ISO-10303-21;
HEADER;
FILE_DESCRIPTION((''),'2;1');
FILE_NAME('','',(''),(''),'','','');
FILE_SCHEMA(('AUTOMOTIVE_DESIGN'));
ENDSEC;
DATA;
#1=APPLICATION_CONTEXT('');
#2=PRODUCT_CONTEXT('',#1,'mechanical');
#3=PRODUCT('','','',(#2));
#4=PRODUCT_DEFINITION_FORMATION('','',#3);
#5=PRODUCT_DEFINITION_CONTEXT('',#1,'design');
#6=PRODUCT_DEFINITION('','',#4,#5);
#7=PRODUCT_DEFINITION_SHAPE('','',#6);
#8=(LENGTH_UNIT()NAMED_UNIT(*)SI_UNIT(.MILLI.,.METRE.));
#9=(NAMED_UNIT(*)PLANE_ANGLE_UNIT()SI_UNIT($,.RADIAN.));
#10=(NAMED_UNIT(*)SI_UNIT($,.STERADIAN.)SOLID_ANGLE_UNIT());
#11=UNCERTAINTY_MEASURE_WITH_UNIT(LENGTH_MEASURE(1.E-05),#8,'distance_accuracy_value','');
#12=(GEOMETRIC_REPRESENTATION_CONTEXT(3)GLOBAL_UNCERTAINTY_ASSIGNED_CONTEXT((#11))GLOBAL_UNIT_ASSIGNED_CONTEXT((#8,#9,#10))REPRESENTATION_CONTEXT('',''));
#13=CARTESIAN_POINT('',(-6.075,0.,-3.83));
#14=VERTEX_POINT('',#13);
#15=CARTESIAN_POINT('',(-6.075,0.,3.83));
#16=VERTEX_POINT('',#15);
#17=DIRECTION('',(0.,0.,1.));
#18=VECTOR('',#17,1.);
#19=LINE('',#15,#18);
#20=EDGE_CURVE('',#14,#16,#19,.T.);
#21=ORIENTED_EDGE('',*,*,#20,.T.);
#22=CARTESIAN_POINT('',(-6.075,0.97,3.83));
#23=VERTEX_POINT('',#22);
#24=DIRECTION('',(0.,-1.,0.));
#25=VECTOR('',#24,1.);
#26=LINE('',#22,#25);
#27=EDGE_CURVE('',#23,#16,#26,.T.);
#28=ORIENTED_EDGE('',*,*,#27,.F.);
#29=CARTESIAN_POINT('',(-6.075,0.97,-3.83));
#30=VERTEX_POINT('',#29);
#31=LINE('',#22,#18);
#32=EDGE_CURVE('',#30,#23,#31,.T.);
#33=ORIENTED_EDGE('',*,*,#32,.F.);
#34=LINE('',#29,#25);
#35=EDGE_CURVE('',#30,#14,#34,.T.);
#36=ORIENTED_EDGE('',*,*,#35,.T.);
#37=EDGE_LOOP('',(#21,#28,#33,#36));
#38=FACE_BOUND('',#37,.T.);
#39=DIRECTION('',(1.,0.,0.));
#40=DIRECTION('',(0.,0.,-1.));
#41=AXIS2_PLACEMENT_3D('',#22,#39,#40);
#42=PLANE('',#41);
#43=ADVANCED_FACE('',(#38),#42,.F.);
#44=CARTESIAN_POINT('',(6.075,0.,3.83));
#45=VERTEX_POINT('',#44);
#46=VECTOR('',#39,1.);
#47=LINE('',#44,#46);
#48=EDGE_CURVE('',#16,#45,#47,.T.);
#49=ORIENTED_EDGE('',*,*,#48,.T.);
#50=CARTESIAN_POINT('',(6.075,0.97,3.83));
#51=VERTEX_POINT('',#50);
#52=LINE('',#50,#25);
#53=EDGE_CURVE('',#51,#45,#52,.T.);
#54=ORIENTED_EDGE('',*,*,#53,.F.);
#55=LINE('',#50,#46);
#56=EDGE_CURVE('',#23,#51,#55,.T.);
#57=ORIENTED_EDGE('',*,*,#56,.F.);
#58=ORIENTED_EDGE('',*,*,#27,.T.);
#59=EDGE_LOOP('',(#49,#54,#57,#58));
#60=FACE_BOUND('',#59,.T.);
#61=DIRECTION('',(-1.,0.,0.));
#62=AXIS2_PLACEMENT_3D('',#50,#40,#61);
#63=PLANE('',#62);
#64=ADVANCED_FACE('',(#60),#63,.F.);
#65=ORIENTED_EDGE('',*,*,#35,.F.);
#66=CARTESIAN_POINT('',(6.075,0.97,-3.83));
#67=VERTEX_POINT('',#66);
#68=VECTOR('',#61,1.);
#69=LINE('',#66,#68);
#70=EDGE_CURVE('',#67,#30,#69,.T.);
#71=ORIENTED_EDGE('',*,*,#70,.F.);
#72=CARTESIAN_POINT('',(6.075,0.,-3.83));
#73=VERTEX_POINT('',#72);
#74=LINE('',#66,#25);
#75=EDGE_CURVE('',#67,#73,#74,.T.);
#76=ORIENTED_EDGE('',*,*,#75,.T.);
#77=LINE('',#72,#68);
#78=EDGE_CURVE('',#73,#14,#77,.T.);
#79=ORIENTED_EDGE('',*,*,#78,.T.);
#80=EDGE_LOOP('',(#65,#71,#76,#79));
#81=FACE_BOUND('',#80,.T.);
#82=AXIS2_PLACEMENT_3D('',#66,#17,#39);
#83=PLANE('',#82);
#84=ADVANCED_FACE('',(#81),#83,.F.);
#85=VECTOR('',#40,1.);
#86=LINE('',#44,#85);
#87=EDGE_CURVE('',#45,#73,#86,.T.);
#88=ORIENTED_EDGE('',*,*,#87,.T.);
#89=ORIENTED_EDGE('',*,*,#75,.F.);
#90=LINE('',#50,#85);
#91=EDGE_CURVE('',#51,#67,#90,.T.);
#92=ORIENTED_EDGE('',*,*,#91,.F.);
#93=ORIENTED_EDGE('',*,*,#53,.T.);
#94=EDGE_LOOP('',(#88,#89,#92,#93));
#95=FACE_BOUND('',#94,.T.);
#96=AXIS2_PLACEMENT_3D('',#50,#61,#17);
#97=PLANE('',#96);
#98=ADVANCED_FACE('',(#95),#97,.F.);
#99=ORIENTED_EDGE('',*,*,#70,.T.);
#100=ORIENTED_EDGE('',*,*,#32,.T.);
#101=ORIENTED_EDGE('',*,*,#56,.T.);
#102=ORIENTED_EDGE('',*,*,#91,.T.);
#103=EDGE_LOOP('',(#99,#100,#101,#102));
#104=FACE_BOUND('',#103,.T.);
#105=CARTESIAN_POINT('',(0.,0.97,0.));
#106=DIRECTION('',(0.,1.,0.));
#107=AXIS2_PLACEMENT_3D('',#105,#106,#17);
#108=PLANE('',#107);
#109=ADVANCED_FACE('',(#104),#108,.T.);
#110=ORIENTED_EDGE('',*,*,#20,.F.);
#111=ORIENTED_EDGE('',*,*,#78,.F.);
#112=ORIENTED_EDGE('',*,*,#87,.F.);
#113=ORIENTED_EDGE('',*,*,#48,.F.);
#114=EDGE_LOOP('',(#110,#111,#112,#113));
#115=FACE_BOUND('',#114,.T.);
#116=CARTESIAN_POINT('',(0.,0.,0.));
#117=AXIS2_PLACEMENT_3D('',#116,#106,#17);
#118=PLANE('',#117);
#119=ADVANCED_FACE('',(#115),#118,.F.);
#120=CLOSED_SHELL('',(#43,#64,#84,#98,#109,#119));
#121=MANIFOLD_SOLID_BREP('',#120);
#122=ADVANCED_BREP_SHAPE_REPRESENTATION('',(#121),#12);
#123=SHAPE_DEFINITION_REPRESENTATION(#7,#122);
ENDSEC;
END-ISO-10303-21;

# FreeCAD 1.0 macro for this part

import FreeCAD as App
import Part
import Sketcher
Q = App.Units.Quantity

doc = App.newDocument("Part")
body = doc.addObject("PartDesign::Body", "Body")

# Sketch on XZ plane
sketch1 = body.newObject("Sketcher::SketchObject", "Sketch")
sketch1.AttachmentSupport = (doc.getObject("XZ_Plane"), [""])
sketch1.MapMode = "FlatFace"
sketch1.addGeometry([
    Part.LineSegment(App.Vector(-6.075, -3.83, 0), App.Vector(-6.075, 3.83, 0)),
    Part.LineSegment(App.Vector(-6.075, 3.83, 0), App.Vector(6.075, 3.83, 0)),
    Part.LineSegment(App.Vector(6.075, 3.83, 0), App.Vector(6.075, -3.83, 0)),
    Part.LineSegment(App.Vector(6.075, -3.83, 0), App.Vector(-6.075, -3.83, 0)),
], False)
sketch1.addConstraint([
    Sketcher.Constraint("Coincident", 0, 2, 1, 1),
    Sketcher.Constraint("Coincident", 1, 2, 2, 1),
    Sketcher.Constraint("Coincident", 2, 2, 3, 1),
    Sketcher.Constraint("Coincident", 3, 2, 0, 1),
    Sketcher.Constraint("Vertical", 0),
    Sketcher.Constraint("Horizontal", 1),
    Sketcher.Constraint("Vertical", 2),
    Sketcher.Constraint("Horizontal", 3),
    Sketcher.Constraint("Symmetric", 0, 2, 2, 2, -1, 1),
    Sketcher.Constraint("DistanceX", 1, 1, 1, 2, Q("12.15 mm")),
    Sketcher.Constraint("DistanceY", 0, 1, 0, 2, Q("7.66 mm")),
])
pad1 = body.newObject("PartDesign::Pad", "Pad")
pad1.Profile = sketch1
pad1.Length = 0.97
pad1.Reversed = True

doc.recompute()
